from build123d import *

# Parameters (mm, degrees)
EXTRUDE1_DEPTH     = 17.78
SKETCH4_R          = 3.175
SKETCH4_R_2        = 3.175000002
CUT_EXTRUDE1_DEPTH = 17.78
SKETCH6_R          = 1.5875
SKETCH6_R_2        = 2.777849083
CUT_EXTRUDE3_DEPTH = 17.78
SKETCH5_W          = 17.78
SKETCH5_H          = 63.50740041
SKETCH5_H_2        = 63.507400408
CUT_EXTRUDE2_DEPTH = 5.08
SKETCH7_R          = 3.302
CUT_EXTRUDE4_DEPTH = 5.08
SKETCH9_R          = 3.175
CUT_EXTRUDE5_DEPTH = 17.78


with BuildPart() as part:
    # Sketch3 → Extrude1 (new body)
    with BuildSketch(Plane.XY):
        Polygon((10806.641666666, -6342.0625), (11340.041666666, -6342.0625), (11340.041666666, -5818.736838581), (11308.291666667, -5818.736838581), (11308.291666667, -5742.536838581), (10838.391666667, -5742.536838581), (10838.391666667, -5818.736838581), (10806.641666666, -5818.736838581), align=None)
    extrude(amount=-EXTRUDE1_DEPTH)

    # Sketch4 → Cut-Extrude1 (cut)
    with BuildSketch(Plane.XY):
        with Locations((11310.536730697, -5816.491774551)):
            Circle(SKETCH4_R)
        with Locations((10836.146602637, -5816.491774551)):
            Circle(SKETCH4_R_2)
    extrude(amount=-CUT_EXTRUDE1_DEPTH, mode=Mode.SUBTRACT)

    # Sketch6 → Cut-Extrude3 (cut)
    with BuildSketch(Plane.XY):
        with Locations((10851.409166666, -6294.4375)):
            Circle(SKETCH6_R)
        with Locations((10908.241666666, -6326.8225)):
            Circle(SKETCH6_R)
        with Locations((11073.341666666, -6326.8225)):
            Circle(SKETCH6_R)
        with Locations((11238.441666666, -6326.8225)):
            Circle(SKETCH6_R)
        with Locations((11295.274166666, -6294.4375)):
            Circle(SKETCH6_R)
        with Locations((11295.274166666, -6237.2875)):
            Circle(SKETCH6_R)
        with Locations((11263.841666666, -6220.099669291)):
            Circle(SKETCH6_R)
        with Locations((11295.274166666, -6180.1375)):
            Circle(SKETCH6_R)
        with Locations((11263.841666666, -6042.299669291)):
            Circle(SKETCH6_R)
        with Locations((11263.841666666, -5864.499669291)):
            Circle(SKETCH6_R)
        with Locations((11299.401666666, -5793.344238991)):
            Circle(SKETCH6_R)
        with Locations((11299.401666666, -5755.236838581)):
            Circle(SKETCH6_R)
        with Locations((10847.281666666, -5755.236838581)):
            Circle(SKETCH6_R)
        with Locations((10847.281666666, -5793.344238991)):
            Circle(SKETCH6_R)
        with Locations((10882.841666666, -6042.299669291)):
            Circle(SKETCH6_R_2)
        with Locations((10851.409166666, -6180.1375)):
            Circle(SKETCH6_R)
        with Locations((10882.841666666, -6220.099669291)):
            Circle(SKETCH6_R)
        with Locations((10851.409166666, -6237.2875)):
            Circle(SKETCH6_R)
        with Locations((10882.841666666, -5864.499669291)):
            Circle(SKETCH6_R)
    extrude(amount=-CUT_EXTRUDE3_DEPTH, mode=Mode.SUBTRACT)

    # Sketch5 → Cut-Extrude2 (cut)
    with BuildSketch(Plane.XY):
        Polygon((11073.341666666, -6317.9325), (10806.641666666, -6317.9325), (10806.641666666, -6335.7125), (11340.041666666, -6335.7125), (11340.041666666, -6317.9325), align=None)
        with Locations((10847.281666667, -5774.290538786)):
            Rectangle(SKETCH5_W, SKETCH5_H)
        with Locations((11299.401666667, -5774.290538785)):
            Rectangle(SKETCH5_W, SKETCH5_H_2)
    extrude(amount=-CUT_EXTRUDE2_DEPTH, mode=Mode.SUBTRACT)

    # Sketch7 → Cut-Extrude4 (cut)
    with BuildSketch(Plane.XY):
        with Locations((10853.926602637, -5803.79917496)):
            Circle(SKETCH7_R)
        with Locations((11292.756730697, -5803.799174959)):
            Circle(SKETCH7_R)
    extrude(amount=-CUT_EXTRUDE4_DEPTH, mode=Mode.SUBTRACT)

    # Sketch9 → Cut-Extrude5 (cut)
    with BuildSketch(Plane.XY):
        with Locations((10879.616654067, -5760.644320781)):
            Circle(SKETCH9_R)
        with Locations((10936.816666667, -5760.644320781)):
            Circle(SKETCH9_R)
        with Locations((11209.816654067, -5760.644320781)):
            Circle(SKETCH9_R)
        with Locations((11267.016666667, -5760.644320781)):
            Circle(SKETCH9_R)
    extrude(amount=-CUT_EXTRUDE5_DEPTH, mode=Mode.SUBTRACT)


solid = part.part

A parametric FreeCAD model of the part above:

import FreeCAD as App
import Part
import Sketcher
from FreeCAD import Vector
Q = App.Units.Quantity

doc = App.newDocument("Part")
body = doc.addObject("PartDesign::Body", "Body")

# Sketch on XY plane
sketch1 = body.newObject("Sketcher::SketchObject", "Sketch")
sketch1.AttachmentSupport = (doc.getObject("XY_Plane"), [""])
sketch1.MapMode = "FlatFace"
sketch1.addGeometry(Part.LineSegment(Vector(10806.641667, -6342.0625, 0), Vector(11340.041667, -6342.0625, 0)), False)
sketch1.addGeometry(Part.LineSegment(Vector(11340.041667, -6342.0625, 0), Vector(11340.041667, -5818.736839, 0)), False)
sketch1.addGeometry(Part.LineSegment(Vector(11340.041667, -5818.736839, 0), Vector(11308.291667, -5818.736839, 0)), False)
sketch1.addGeometry(Part.LineSegment(Vector(11308.291667, -5818.736839, 0), Vector(11308.291667, -5742.536839, 0)), False)
sketch1.addGeometry(Part.LineSegment(Vector(11308.291667, -5742.536839, 0), Vector(10838.391667, -5742.536839, 0)), False)
sketch1.addGeometry(Part.LineSegment(Vector(10838.391667, -5742.536839, 0), Vector(10838.391667, -5818.736839, 0)), False)
sketch1.addGeometry(Part.LineSegment(Vector(10838.391667, -5818.736839, 0), Vector(10806.641667, -5818.736839, 0)), False)
sketch1.addGeometry(Part.LineSegment(Vector(10806.641667, -5818.736839, 0), Vector(10806.641667, -6342.0625, 0)), False)
sketch1.addConstraint(Sketcher.Constraint("Coincident", 0, 2, 1, 1))
sketch1.addConstraint(Sketcher.Constraint("Coincident", 1, 2, 2, 1))
sketch1.addConstraint(Sketcher.Constraint("Coincident", 2, 2, 3, 1))
sketch1.addConstraint(Sketcher.Constraint("Coincident", 3, 2, 4, 1))
sketch1.addConstraint(Sketcher.Constraint("Coincident", 4, 2, 5, 1))
sketch1.addConstraint(Sketcher.Constraint("Coincident", 5, 2, 6, 1))
sketch1.addConstraint(Sketcher.Constraint("Coincident", 6, 2, 7, 1))
sketch1.addConstraint(Sketcher.Constraint("Coincident", 7, 2, 0, 1))
sketch1.addConstraint(Sketcher.Constraint("Horizontal", 0))
sketch1.addConstraint(Sketcher.Constraint("Vertical", 1))
sketch1.addConstraint(Sketcher.Constraint("Horizontal", 2))
sketch1.addConstraint(Sketcher.Constraint("Vertical", 3))
sketch1.addConstraint(Sketcher.Constraint("Horizontal", 4))
sketch1.addConstraint(Sketcher.Constraint("Vertical", 5))
sketch1.addConstraint(Sketcher.Constraint("Horizontal", 6))
sketch1.addConstraint(Sketcher.Constraint("Vertical", 7))
sketch1.addConstraint(Sketcher.Constraint("Horizontal", 2, 2, 5, 2))
sketch1.addConstraint(Sketcher.Constraint("Equal", 2, 6))
sketch1.addConstraint(Sketcher.Constraint("DistanceX", 0, 1, 0, 2, Q("21 in")))
sketch1.addConstraint(Sketcher.Constraint("DistanceY", 3, 1, 3, 2, Q("3 in")))
sketch1.addConstraint(Sketcher.Constraint("DistanceX", 4, 2, 4, 1, Q("18.5 in")))
sketch1.addConstraint(Sketcher.Constraint("DistanceY", 0, 2, -1, 1, Q("249.6875 in")))
sketch1.addConstraint(Sketcher.Constraint("DistanceY", 1, 1, 1, 2, 523.325661))
sketch1.addConstraint(Sketcher.Constraint("DistanceX", -1, 1, 0, 2, 11340.041667))
pad1 = body.newObject("PartDesign::Pad", "Pad")
pad1.Profile = sketch1
pad1.Length = Q("0.7 in")
pad1.Reversed = True

# Sketch on XY plane
sketch2 = body.newObject("Sketcher::SketchObject", "Sketch001")
sketch2.AttachmentSupport = (doc.getObject("XY_Plane"), [""])
sketch2.MapMode = "FlatFace"
sketch2.addGeometry(Part.Circle(Vector(11310.536731, -5816.491775, 0), Vector(0, 0, 1), 3.175), False)
sketch2.addGeometry(Part.Circle(Vector(10836.146603, -5816.491775, 0), Vector(0, 0, 1), 3.175), False)
sketch2.addConstraint(Sketcher.Constraint("Equal", 0, 1))
sketch2.addConstraint(Sketcher.Constraint("Horizontal", 0, 3, 1, 3))
sketch2.addConstraint(Sketcher.Constraint("Diameter", 0, Q("0.25 in")))
sketch2.addConstraint(Sketcher.Constraint("DistanceX", -1, 1, 0, 3, 11310.536731))
sketch2.addConstraint(Sketcher.Constraint("DistanceX", 1, 3, 0, 3, 474.390128))
sketch2.addConstraint(Sketcher.Constraint("DistanceY", 0, 3, -1, 1, 5816.491775))
pocket1 = body.newObject("PartDesign::Pocket", "Pocket")
pocket1.Profile = sketch2
pocket1.Length = Q("0.7 in")

# Sketch on XY plane
sketch3 = body.newObject("Sketcher::SketchObject", "Sketch002")
sketch3.AttachmentSupport = (doc.getObject("XY_Plane"), [""])
sketch3.MapMode = "FlatFace"
sketch3.addGeometry(Part.Circle(Vector(10851.409167, -6294.4375, 0), Vector(0, 0, 1), 1.5875), False)
sketch3.addGeometry(Part.Circle(Vector(10908.241667, -6326.8225, 0), Vector(0, 0, 1), 1.5875), False)
sketch3.addGeometry(Part.Circle(Vector(11073.341667, -6326.8225, 0), Vector(0, 0, 1), 1.5875), False)
sketch3.addGeometry(Part.Circle(Vector(11238.441667, -6326.8225, 0), Vector(0, 0, 1), 1.5875), False)
sketch3.addGeometry(Part.Circle(Vector(11295.274167, -6294.4375, 0), Vector(0, 0, 1), 1.5875), False)
sketch3.addGeometry(Part.Circle(Vector(11295.274167, -6237.2875, 0), Vector(0, 0, 1), 1.5875), False)
sketch3.addGeometry(Part.Circle(Vector(11263.841667, -6220.099669, 0), Vector(0, 0, 1), 1.5875), False)
sketch3.addGeometry(Part.Circle(Vector(11295.274167, -6180.1375, 0), Vector(0, 0, 1), 1.5875), False)
sketch3.addGeometry(Part.Circle(Vector(11263.841667, -6042.299669, 0), Vector(0, 0, 1), 1.5875), False)
sketch3.addGeometry(Part.Circle(Vector(11263.841667, -5864.499669, 0), Vector(0, 0, 1), 1.5875), False)
sketch3.addGeometry(Part.Circle(Vector(11299.401667, -5793.344239, 0), Vector(0, 0, 1), 1.5875), False)
sketch3.addGeometry(Part.Circle(Vector(11299.401667, -5755.236839, 0), Vector(0, 0, 1), 1.5875), False)
sketch3.addGeometry(Part.Circle(Vector(10847.281667, -5755.236839, 0), Vector(0, 0, 1), 1.5875), False)
sketch3.addGeometry(Part.Circle(Vector(10847.281667, -5793.344239, 0), Vector(0, 0, 1), 1.5875), False)
sketch3.addGeometry(Part.Circle(Vector(10882.841667, -6042.299669, 0), Vector(0, 0, 1), 2.777849), False)
sketch3.addGeometry(Part.Circle(Vector(10851.409167, -6180.1375, 0), Vector(0, 0, 1), 1.5875), False)
sketch3.addGeometry(Part.Circle(Vector(10882.841667, -6220.099669, 0), Vector(0, 0, 1), 1.5875), False)
sketch3.addGeometry(Part.Circle(Vector(10851.409167, -6237.2875, 0), Vector(0, 0, 1), 1.5875), False)
sketch3.addGeometry(Part.Circle(Vector(10882.841667, -5864.499669, 0), Vector(0, 0, 1), 1.5875), False)
sketch3.addConstraint(Sketcher.Constraint("Equal", 0, 1))
sketch3.addConstraint(Sketcher.Constraint("Equal", 1, 2))
sketch3.addConstraint(Sketcher.Constraint("Equal", 2, 3))
sketch3.addConstraint(Sketcher.Constraint("Equal", 3, 4))
sketch3.addConstraint(Sketcher.Constraint("Equal", 4, 5))
sketch3.addConstraint(Sketcher.Constraint("Equal", 5, 6))
sketch3.addConstraint(Sketcher.Constraint("Equal", 6, 7))
sketch3.addConstraint(Sketcher.Constraint("Equal", 7, 8))
sketch3.addConstraint(Sketcher.Constraint("Equal", 8, 9))
sketch3.addConstraint(Sketcher.Constraint("Equal", 9, 10))
sketch3.addConstraint(Sketcher.Constraint("Equal", 10, 11))
sketch3.addConstraint(Sketcher.Constraint("Equal", 11, 12))
sketch3.addConstraint(Sketcher.Constraint("Equal", 12, 13))
sketch3.addConstraint(Sketcher.Constraint("Equal", 13, 15))
sketch3.addConstraint(Sketcher.Constraint("Equal", 15, 16))
sketch3.addConstraint(Sketcher.Constraint("Equal", 16, 17))
sketch3.addConstraint(Sketcher.Constraint("Equal", 17, 18))
sketch3.addConstraint(Sketcher.Constraint("Horizontal", 1, 3, 2, 3))
sketch3.addConstraint(Sketcher.Constraint("Horizontal", 2, 3, 3, 3))
sketch3.addConstraint(Sketcher.Constraint("Horizontal", 0, 3, 4, 3))
sketch3.addConstraint(Sketcher.Constraint("Horizontal", 11, 3, 12, 3))
sketch3.addConstraint(Sketcher.Constraint("Horizontal", 10, 3, 13, 3))
sketch3.addConstraint(Sketcher.Constraint("Horizontal", 8, 3, 14, 3))
sketch3.addConstraint(Sketcher.Constraint("Horizontal", 7, 3, 15, 3))
sketch3.addConstraint(Sketcher.Constraint("Horizontal", 6, 3, 16, 3))
sketch3.addConstraint(Sketcher.Constraint("Horizontal", 5, 3, 17, 3))
sketch3.addConstraint(Sketcher.Constraint("Horizontal", 9, 3, 18, 3))
sketch3.addConstraint(Sketcher.Constraint("Vertical", 4, 3, 5, 3))
sketch3.addConstraint(Sketcher.Constraint("Vertical", 5, 3, 7, 3))
sketch3.addConstraint(Sketcher.Constraint("Vertical", 6, 3, 8, 3))
sketch3.addConstraint(Sketcher.Constraint("Vertical", 8, 3, 9, 3))
sketch3.addConstraint(Sketcher.Constraint("Vertical", 10, 3, 11, 3))
sketch3.addConstraint(Sketcher.Constraint("Vertical", 12, 3, 13, 3))
sketch3.addConstraint(Sketcher.Constraint("Vertical", 0, 3, 15, 3))
sketch3.addConstraint(Sketcher.Constraint("Vertical", 14, 3, 16, 3))
sketch3.addConstraint(Sketcher.Constraint("Vertical", 15, 3, 17, 3))
sketch3.addConstraint(Sketcher.Constraint("Vertical", 16, 3, 18, 3))
sketch3.addConstraint(Sketcher.Constraint("Diameter", 0, Q("0.125 in")))
sketch3.addConstraint(Sketcher.Constraint("DistanceX", 1, 3, 3, 3, Q("13 in")))
sketch3.addConstraint(Sketcher.Constraint("DistanceX", 3, 3, 6, 3, Q("1 in")))
sketch3.addConstraint(Sketcher.Constraint("DistanceY", 6, 3, 8, 3, Q("7 in")))
sketch3.addConstraint(Sketcher.Constraint("DistanceY", 8, 3, 9, 3, Q("7 in")))
sketch3.addConstraint(Sketcher.Constraint("DistanceX", 14, 3, 1, 3, Q("1 in")))
sketch3.addConstraint(Sketcher.Constraint("DistanceX", 1, 3, 2, 3, Q("6.5 in")))
sketch3.addConstraint(Sketcher.Constraint("DistanceY", 4, 3, 7, 3, Q("4.5 in")))
sketch3.addConstraint(Sketcher.Constraint("DistanceX", 9, 3, 10, 3, Q("1.4 in")))
sketch3.addConstraint(Sketcher.Constraint("DistanceX", 12, 3, 9, 3, Q("16.4 in")))
sketch3.addConstraint(Sketcher.Constraint("Diameter", 14, 5.555698))
sketch3.addConstraint(Sketcher.Constraint("DistanceY", 4, 3, 5, 3, Q("2.25 in")))
sketch3.addConstraint(Sketcher.Constraint("DistanceY", 0, 3, -1, 1, Q("247.8125 in")))
sketch3.addConstraint(Sketcher.Constraint("DistanceY", 1, 3, 0, 3, Q("1.275 in")))
sketch3.addConstraint(Sketcher.Constraint("DistanceX", 0, 3, 4, 3, Q("17.475 in")))
sketch3.addConstraint(Sketcher.Constraint("DistanceX", 0, 3, 1, 3, Q("2.2375 in")))
sketch3.addConstraint(Sketcher.Constraint("DistanceY", 10, 3, 11, 3, 38.1074))
sketch3.addConstraint(Sketcher.Constraint("DistanceY", 6, 3, -1, 1, 6220.099669))
sketch3.addConstraint(Sketcher.Constraint("DistanceY", 10, 3, -1, 1, 5793.344239))
sketch3.addConstraint(Sketcher.Constraint("DistanceX", -1, 1, 0, 3, 10851.409167))
pocket2 = body.newObject("PartDesign::Pocket", "Pocket001")
pocket2.Profile = sketch3
pocket2.Length = Q("0.7 in")

# Sketch on XY plane
sketch4 = body.newObject("Sketcher::SketchObject", "Sketch003")
sketch4.AttachmentSupport = (doc.getObject("XY_Plane"), [""])
sketch4.MapMode = "FlatFace"
sketch4.addGeometry(Part.LineSegment(Vector(10806.641667, -6317.9325, 0), Vector(10806.641667, -6335.7125, 0)), False)
sketch4.addGeometry(Part.LineSegment(Vector(10806.641667, -6335.7125, 0), Vector(11340.041667, -6335.7125, 0)), False)
sketch4.addGeometry(Part.LineSegment(Vector(11340.041667, -6335.7125, 0), Vector(11340.041667, -6317.9325, 0)), False)
sketch4.addGeometry(Part.LineSegment(Vector(11340.041667, -6317.9325, 0), Vector(10806.641667, -6317.9325, 0)), False)
sketch4.addGeometry(Part.LineSegment(Vector(10838.391667, -5742.536839, 0), Vector(10838.391667, -5806.044239, 0)), False)
sketch4.addGeometry(Part.LineSegment(Vector(10838.391667, -5806.044239, 0), Vector(10856.171667, -5806.044239, 0)), False)
sketch4.addGeometry(Part.LineSegment(Vector(10856.171667, -5806.044239, 0), Vector(10856.171667, -5742.536839, 0)), False)
sketch4.addGeometry(Part.LineSegment(Vector(10856.171667, -5742.536839, 0), Vector(10838.391667, -5742.536839, 0)), False)
sketch4.addGeometry(Part.LineSegment(Vector(11290.511667, -5742.536839, 0), Vector(11290.511667, -5806.044239, 0)), False)
sketch4.addGeometry(Part.LineSegment(Vector(11290.511667, -5806.044239, 0), Vector(11308.291667, -5806.044239, 0)), False)
sketch4.addGeometry(Part.LineSegment(Vector(11308.291667, -5806.044239, 0), Vector(11308.291667, -5742.536839, 0)), False)
sketch4.addGeometry(Part.LineSegment(Vector(11308.291667, -5742.536839, 0), Vector(11290.511667, -5742.536839, 0)), False)
sketch4.addConstraint(Sketcher.Constraint("Coincident", 0, 2, 1, 1))
sketch4.addConstraint(Sketcher.Constraint("Coincident", 1, 2, 2, 1))
sketch4.addConstraint(Sketcher.Constraint("Coincident", 2, 2, 3, 1))
sketch4.addConstraint(Sketcher.Constraint("Coincident", 3, 2, 0, 1))
sketch4.addConstraint(Sketcher.Constraint("Coincident", 4, 2, 5, 1))
sketch4.addConstraint(Sketcher.Constraint("Coincident", 5, 2, 6, 1))
sketch4.addConstraint(Sketcher.Constraint("Coincident", 6, 2, 7, 1))
sketch4.addConstraint(Sketcher.Constraint("Coincident", 7, 2, 4, 1))
sketch4.addConstraint(Sketcher.Constraint("Coincident", 8, 2, 9, 1))
sketch4.addConstraint(Sketcher.Constraint("Coincident", 9, 2, 10, 1))
sketch4.addConstraint(Sketcher.Constraint("Coincident", 10, 2, 11, 1))
sketch4.addConstraint(Sketcher.Constraint("Coincident", 11, 2, 8, 1))
sketch4.addConstraint(Sketcher.Constraint("Vertical", 0))
sketch4.addConstraint(Sketcher.Constraint("Horizontal", 1))
sketch4.addConstraint(Sketcher.Constraint("Vertical", 2))
sketch4.addConstraint(Sketcher.Constraint("Horizontal", 3))
sketch4.addConstraint(Sketcher.Constraint("Vertical", 4))
sketch4.addConstraint(Sketcher.Constraint("Horizontal", 5))
sketch4.addConstraint(Sketcher.Constraint("Vertical", 6))
sketch4.addConstraint(Sketcher.Constraint("Horizontal", 7))
sketch4.addConstraint(Sketcher.Constraint("Vertical", 8))
sketch4.addConstraint(Sketcher.Constraint("Horizontal", 9))
sketch4.addConstraint(Sketcher.Constraint("Vertical", 10))
sketch4.addConstraint(Sketcher.Constraint("Horizontal", 11))
sketch4.addConstraint(Sketcher.Constraint("Horizontal", 5, 2, 8, 2))
sketch4.addConstraint(Sketcher.Constraint("Horizontal", 7, 2, 10, 2))
sketch4.addConstraint(Sketcher.Constraint("Equal", 7, 9))
sketch4.addConstraint(Sketcher.Constraint("Equal", 11, 0))
sketch4.addConstraint(Sketcher.Constraint("DistanceX", 1, 1, 1, 2, Q("21 in")))
sketch4.addConstraint(Sketcher.Constraint("DistanceX", 5, 1, 5, 2, Q("0.7 in")))
sketch4.addConstraint(Sketcher.Constraint("DistanceX", 5, 2, 8, 2, Q("17.1 in")))
sketch4.addConstraint(Sketcher.Constraint("DistanceX", 3, 2, 4, 2, Q("1.25 in")))
sketch4.addConstraint(Sketcher.Constraint("DistanceY", 0, 2, -1, 1, Q("249.4375 in")))
sketch4.addConstraint(Sketcher.Constraint("DistanceY", 4, 2, 4, 1, 63.5074))
sketch4.addConstraint(Sketcher.Constraint("DistanceY", 4, 2, -1, 1, 5806.044239))
sketch4.addConstraint(Sketcher.Constraint("DistanceX", -1, 1, 0, 2, 10806.641667))
pocket3 = body.newObject("PartDesign::Pocket", "Pocket002")
pocket3.Profile = sketch4
pocket3.Length = Q("0.2 in")

# Sketch on XY plane
sketch5 = body.newObject("Sketcher::SketchObject", "Sketch004")
sketch5.AttachmentSupport = (doc.getObject("XY_Plane"), [""])
sketch5.MapMode = "FlatFace"
sketch5.addGeometry(Part.Circle(Vector(10853.926603, -5803.799175, 0), Vector(0, 0, 1), 3.302), False)
sketch5.addGeometry(Part.Circle(Vector(11292.756731, -5803.799175, 0), Vector(0, 0, 1), 3.302), False)
sketch5.addConstraint(Sketcher.Constraint("Equal", 0, 1))
sketch5.addConstraint(Sketcher.Constraint("Horizontal", 0, 3, 1, 3))
sketch5.addConstraint(Sketcher.Constraint("Diameter", 0, Q("0.26 in")))
sketch5.addConstraint(Sketcher.Constraint("DistanceX", -1, 1, 1, 3, 11292.756731))
sketch5.addConstraint(Sketcher.Constraint("DistanceX", 0, 3, 1, 3, 438.830128))
sketch5.addConstraint(Sketcher.Constraint("DistanceY", 0, 3, -1, 1, 5803.799175))
pocket4 = body.newObject("PartDesign::Pocket", "Pocket003")
pocket4.Profile = sketch5
pocket4.Length = Q("0.2 in")

# Sketch on XY plane
sketch6 = body.newObject("Sketcher::SketchObject", "Sketch005")
sketch6.AttachmentSupport = (doc.getObject("XY_Plane"), [""])
sketch6.MapMode = "FlatFace"
sketch6.addGeometry(Part.Circle(Vector(10879.616654, -5760.644321, 0), Vector(0, 0, 1), 3.175), False)
sketch6.addGeometry(Part.Circle(Vector(10936.816667, -5760.644321, 0), Vector(0, 0, 1), 3.175), False)
sketch6.addGeometry(Part.Circle(Vector(11209.816654, -5760.644321, 0), Vector(0, 0, 1), 3.175), False)
sketch6.addGeometry(Part.Circle(Vector(11267.016667, -5760.644321, 0), Vector(0, 0, 1), 3.175), False)
sketch6.addConstraint(Sketcher.Constraint("Equal", 0, 1))
sketch6.addConstraint(Sketcher.Constraint("Equal", 1, 2))
sketch6.addConstraint(Sketcher.Constraint("Equal", 2, 3))
sketch6.addConstraint(Sketcher.Constraint("Horizontal", 0, 3, 1, 3))
sketch6.addConstraint(Sketcher.Constraint("Horizontal", 1, 3, 2, 3))
sketch6.addConstraint(Sketcher.Constraint("Horizontal", 2, 3, 3, 3))
sketch6.addConstraint(Sketcher.Constraint("Diameter", 0, Q("0.25 in")))
sketch6.addConstraint(Sketcher.Constraint("DistanceX", 0, 3, 2, 3, Q("13 in")))
sketch6.addConstraint(Sketcher.Constraint("DistanceX", 1, 3, 3, 3, Q("13 in")))
sketch6.addConstraint(Sketcher.Constraint("DistanceY", 0, 3, -1, 1, 5760.644321))
sketch6.addConstraint(Sketcher.Constraint("DistanceX", -1, 1, 0, 3, 10879.616654))
sketch6.addConstraint(Sketcher.Constraint("DistanceX", -1, 1, 1, 3, 10936.816667))
pocket5 = body.newObject("PartDesign::Pocket", "Pocket004")
pocket5.Profile = sketch6
pocket5.Length = Q("0.7 in")

doc.recompute()
